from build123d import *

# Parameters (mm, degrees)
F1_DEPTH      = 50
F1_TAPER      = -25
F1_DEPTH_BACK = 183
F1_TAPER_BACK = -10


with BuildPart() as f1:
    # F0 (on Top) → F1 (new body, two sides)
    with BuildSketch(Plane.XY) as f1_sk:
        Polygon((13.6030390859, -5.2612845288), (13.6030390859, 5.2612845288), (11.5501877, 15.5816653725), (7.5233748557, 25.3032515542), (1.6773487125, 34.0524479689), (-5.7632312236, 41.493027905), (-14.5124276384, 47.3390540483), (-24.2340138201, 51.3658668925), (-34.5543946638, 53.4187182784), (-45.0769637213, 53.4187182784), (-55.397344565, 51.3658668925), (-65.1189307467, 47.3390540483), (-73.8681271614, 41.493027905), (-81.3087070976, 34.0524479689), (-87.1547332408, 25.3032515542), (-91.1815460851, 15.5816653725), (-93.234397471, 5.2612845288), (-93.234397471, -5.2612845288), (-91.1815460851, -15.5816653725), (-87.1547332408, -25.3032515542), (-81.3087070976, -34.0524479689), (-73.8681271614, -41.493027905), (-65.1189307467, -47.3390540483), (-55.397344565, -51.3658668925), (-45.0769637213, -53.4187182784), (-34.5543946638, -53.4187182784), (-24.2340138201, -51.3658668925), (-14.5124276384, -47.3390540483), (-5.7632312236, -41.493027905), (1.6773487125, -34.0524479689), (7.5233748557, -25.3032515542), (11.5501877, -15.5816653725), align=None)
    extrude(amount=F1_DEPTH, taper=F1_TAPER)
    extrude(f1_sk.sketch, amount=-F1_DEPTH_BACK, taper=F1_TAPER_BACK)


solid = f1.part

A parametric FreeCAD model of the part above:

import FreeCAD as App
import Part
import Sketcher
from FreeCAD import Vector
Q = App.Units.Quantity

doc = App.newDocument("Part")
body = doc.addObject("PartDesign::Body", "Body")

# Sketch on XY plane
sketch1 = body.newObject("Sketcher::SketchObject", "Sketch")
sketch1.AttachmentSupport = (doc.getObject("XY_Plane"), [""])
sketch1.MapMode = "FlatFace"
sketch1.addGeometry([
    Part.LineSegment(Vector(14, -5, 0), Vector(14, 5, 0)),  # 0
    Part.LineSegment(Vector(14, 5, 0), Vector(12, 16, 0)),  # 1
    Part.LineSegment(Vector(12, 16, 0), Vector(8, 25, 0)),  # 2
    Part.LineSegment(Vector(8, 25, 0), Vector(2, 34, 0)),  # 3
    Part.LineSegment(Vector(2, 34, 0), Vector(-6, 41, 0)),  # 4
    Part.LineSegment(Vector(-6, 41, 0), Vector(-15, 47, 0)),  # 5
    Part.LineSegment(Vector(-15, 47, 0), Vector(-24, 51, 0)),  # 6
    Part.LineSegment(Vector(-24, 51, 0), Vector(-35, 53, 0)),  # 7
    Part.LineSegment(Vector(-35, 53, 0), Vector(-45, 53, 0)),  # 8
    Part.LineSegment(Vector(-45, 53, 0), Vector(-55, 51, 0)),  # 9
    Part.LineSegment(Vector(-55, 51, 0), Vector(-65, 47, 0)),  # 10
    Part.LineSegment(Vector(-65, 47, 0), Vector(-74, 41, 0)),  # 11
    Part.LineSegment(Vector(-74, 41, 0), Vector(-81, 34, 0)),  # 12
    Part.LineSegment(Vector(-81, 34, 0), Vector(-87, 25, 0)),  # 13
    Part.LineSegment(Vector(-87, 25, 0), Vector(-91, 16, 0)),  # 14
    Part.LineSegment(Vector(-91, 16, 0), Vector(-93, 5, 0)),  # 15
    Part.LineSegment(Vector(-93, 5, 0), Vector(-93, -5, 0)),  # 16
    Part.LineSegment(Vector(-93, -5, 0), Vector(-91, -16, 0)),  # 17
    Part.LineSegment(Vector(-91, -16, 0), Vector(-87, -25, 0)),  # 18
    Part.LineSegment(Vector(-87, -25, 0), Vector(-81, -34, 0)),  # 19
    Part.LineSegment(Vector(-81, -34, 0), Vector(-74, -41, 0)),  # 20
    Part.LineSegment(Vector(-74, -41, 0), Vector(-65, -47, 0)),  # 21
    Part.LineSegment(Vector(-65, -47, 0), Vector(-55, -51, 0)),  # 22
    Part.LineSegment(Vector(-55, -51, 0), Vector(-45, -53, 0)),  # 23
    Part.LineSegment(Vector(-45, -53, 0), Vector(-35, -53, 0)),  # 24
    Part.LineSegment(Vector(-35, -53, 0), Vector(-24, -51, 0)),  # 25
    Part.LineSegment(Vector(-24, -51, 0), Vector(-15, -47, 0)),  # 26
    Part.LineSegment(Vector(-15, -47, 0), Vector(-6, -41, 0)),  # 27
    Part.LineSegment(Vector(-6, -41, 0), Vector(2, -34, 0)),  # 28
    Part.LineSegment(Vector(2, -34, 0), Vector(8, -25, 0)),  # 29
    Part.LineSegment(Vector(8, -25, 0), Vector(12, -16, 0)),  # 30
    Part.LineSegment(Vector(12, -16, 0), Vector(14, -5, 0)),  # 31
], False)
sketch1.addConstraint([
    Sketcher.Constraint("Coincident", 0, 2, 1, 1),
    Sketcher.Constraint("Coincident", 1, 2, 2, 1),
    Sketcher.Constraint("Coincident", 2, 2, 3, 1),
    Sketcher.Constraint("Coincident", 3, 2, 4, 1),
    Sketcher.Constraint("Coincident", 4, 2, 5, 1),
    Sketcher.Constraint("Coincident", 5, 2, 6, 1),
    Sketcher.Constraint("Coincident", 6, 2, 7, 1),
    Sketcher.Constraint("Coincident", 7, 2, 8, 1),
    Sketcher.Constraint("Coincident", 8, 2, 9, 1),
    Sketcher.Constraint("Coincident", 9, 2, 10, 1),
    Sketcher.Constraint("Coincident", 10, 2, 11, 1),
    Sketcher.Constraint("Coincident", 11, 2, 12, 1),
    Sketcher.Constraint("Coincident", 12, 2, 13, 1),
    Sketcher.Constraint("Coincident", 13, 2, 14, 1),
    Sketcher.Constraint("Coincident", 14, 2, 15, 1),
    Sketcher.Constraint("Coincident", 15, 2, 16, 1),
    Sketcher.Constraint("Coincident", 16, 2, 17, 1),
    Sketcher.Constraint("Coincident", 17, 2, 18, 1),
    Sketcher.Constraint("Coincident", 18, 2, 19, 1),
    Sketcher.Constraint("Coincident", 19, 2, 20, 1),
    Sketcher.Constraint("Coincident", 20, 2, 21, 1),
    Sketcher.Constraint("Coincident", 21, 2, 22, 1),
    Sketcher.Constraint("Coincident", 22, 2, 23, 1),
    Sketcher.Constraint("Coincident", 23, 2, 24, 1),
    Sketcher.Constraint("Coincident", 24, 2, 25, 1),
    Sketcher.Constraint("Coincident", 25, 2, 26, 1),
    Sketcher.Constraint("Coincident", 26, 2, 27, 1),
    Sketcher.Constraint("Coincident", 27, 2, 28, 1),
    Sketcher.Constraint("Coincident", 28, 2, 29, 1),
    Sketcher.Constraint("Coincident", 29, 2, 30, 1),
    Sketcher.Constraint("Coincident", 30, 2, 31, 1),
    Sketcher.Constraint("Coincident", 31, 2, 0, 1),
    Sketcher.Constraint("Vertical", 0),
    Sketcher.Constraint("Horizontal", 8),
    Sketcher.Constraint("Vertical", 16),
    Sketcher.Constraint("Horizontal", 24),
    Sketcher.Constraint("Symmetric", 14, 2, 17, 2, -1),
    Sketcher.Constraint("Symmetric", 13, 2, 18, 2, -1),
    Sketcher.Constraint("Symmetric", 12, 2, 19, 2, -1),
    Sketcher.Constraint("Symmetric", 11, 2, 20, 2, -1),
    Sketcher.Constraint("Symmetric", 10, 2, 21, 2, -1),
    Sketcher.Constraint("Symmetric", 9, 2, 22, 2, -1),
    Sketcher.Constraint("Symmetric", 8, 2, 23, 2, -1),
    Sketcher.Constraint("Symmetric", 6, 2, 25, 2, -1),
    Sketcher.Constraint("Symmetric", 5, 2, 26, 2, -1),
    Sketcher.Constraint("Symmetric", 4, 2, 27, 2, -1),
    Sketcher.Constraint("Symmetric", 3, 2, 28, 2, -1),
    Sketcher.Constraint("Symmetric", 2, 2, 29, 2, -1),
    Sketcher.Constraint("Symmetric", 1, 2, 30, 2, -1),
    Sketcher.Constraint("Perpendicular", 1, 9),
    Sketcher.Constraint("Perpendicular", 2, 10),
    Sketcher.Constraint("Perpendicular", 3, 11),
    Sketcher.Constraint("Perpendicular", 4, 12),
    Sketcher.Constraint("Perpendicular", 5, 13),
    Sketcher.Constraint("Perpendicular", 6, 14),
    Sketcher.Constraint("Perpendicular", 7, 15),
    Sketcher.Constraint("Perpendicular", 9, 17),
    Sketcher.Constraint("Perpendicular", 10, 18),
    Sketcher.Constraint("Perpendicular", 11, 19),
    Sketcher.Constraint("Perpendicular", 12, 20),
    Sketcher.Constraint("Perpendicular", 15, 23),
    Sketcher.Constraint("Perpendicular", 17, 25),
    Sketcher.Constraint("Perpendicular", 23, 31),
    Sketcher.Constraint("Horizontal", 6, 2, 9, 2),
    Sketcher.Constraint("Horizontal", 5, 2, 10, 2),
    Sketcher.Constraint("Horizontal", 4, 2, 11, 2),
    Sketcher.Constraint("Horizontal", 3, 2, 12, 2),
    Sketcher.Constraint("Horizontal", 2, 2, 13, 2),
    Sketcher.Constraint("Horizontal", 1, 2, 14, 2),
    Sketcher.Constraint("Horizontal", 0, 2, 15, 2),
    Sketcher.Constraint("Equal", 24, 0),
    Sketcher.Constraint("Equal", 1, 2),
    Sketcher.Constraint("Equal", 2, 3),
    Sketcher.Constraint("Equal", 3, 4),
    Sketcher.Constraint("Equal", 4, 5),
    Sketcher.Constraint("Equal", 5, 6),
    Sketcher.Constraint("Equal", 6, 7),
    Sketcher.Constraint("Angle", 2, Q("112.5 deg")),
    Sketcher.Constraint("Angle", 1, Q("101.25 deg")),
    Sketcher.Constraint("Angle", 3, Q("123.75 deg")),
    Sketcher.Constraint("DistanceX", 8, 2, 8, 1, 10.522569),
    Sketcher.Constraint("DistanceX", 6, 2, 1, 2, 35.784202),
    Sketcher.Constraint("DistanceX", -1, 1, 0, 2, 13.603039),
])
pad1 = body.newObject("PartDesign::Pad", "Pad")
pad1.Profile = sketch1
pad1.Length = 50
pad1.TaperAngle = 25
pad2 = body.newObject("PartDesign::Pad", "Pad001")
pad2.Profile = sketch1
pad2.Length = 183
pad2.Reversed = True
pad2.TaperAngle = 10

doc.recompute()
